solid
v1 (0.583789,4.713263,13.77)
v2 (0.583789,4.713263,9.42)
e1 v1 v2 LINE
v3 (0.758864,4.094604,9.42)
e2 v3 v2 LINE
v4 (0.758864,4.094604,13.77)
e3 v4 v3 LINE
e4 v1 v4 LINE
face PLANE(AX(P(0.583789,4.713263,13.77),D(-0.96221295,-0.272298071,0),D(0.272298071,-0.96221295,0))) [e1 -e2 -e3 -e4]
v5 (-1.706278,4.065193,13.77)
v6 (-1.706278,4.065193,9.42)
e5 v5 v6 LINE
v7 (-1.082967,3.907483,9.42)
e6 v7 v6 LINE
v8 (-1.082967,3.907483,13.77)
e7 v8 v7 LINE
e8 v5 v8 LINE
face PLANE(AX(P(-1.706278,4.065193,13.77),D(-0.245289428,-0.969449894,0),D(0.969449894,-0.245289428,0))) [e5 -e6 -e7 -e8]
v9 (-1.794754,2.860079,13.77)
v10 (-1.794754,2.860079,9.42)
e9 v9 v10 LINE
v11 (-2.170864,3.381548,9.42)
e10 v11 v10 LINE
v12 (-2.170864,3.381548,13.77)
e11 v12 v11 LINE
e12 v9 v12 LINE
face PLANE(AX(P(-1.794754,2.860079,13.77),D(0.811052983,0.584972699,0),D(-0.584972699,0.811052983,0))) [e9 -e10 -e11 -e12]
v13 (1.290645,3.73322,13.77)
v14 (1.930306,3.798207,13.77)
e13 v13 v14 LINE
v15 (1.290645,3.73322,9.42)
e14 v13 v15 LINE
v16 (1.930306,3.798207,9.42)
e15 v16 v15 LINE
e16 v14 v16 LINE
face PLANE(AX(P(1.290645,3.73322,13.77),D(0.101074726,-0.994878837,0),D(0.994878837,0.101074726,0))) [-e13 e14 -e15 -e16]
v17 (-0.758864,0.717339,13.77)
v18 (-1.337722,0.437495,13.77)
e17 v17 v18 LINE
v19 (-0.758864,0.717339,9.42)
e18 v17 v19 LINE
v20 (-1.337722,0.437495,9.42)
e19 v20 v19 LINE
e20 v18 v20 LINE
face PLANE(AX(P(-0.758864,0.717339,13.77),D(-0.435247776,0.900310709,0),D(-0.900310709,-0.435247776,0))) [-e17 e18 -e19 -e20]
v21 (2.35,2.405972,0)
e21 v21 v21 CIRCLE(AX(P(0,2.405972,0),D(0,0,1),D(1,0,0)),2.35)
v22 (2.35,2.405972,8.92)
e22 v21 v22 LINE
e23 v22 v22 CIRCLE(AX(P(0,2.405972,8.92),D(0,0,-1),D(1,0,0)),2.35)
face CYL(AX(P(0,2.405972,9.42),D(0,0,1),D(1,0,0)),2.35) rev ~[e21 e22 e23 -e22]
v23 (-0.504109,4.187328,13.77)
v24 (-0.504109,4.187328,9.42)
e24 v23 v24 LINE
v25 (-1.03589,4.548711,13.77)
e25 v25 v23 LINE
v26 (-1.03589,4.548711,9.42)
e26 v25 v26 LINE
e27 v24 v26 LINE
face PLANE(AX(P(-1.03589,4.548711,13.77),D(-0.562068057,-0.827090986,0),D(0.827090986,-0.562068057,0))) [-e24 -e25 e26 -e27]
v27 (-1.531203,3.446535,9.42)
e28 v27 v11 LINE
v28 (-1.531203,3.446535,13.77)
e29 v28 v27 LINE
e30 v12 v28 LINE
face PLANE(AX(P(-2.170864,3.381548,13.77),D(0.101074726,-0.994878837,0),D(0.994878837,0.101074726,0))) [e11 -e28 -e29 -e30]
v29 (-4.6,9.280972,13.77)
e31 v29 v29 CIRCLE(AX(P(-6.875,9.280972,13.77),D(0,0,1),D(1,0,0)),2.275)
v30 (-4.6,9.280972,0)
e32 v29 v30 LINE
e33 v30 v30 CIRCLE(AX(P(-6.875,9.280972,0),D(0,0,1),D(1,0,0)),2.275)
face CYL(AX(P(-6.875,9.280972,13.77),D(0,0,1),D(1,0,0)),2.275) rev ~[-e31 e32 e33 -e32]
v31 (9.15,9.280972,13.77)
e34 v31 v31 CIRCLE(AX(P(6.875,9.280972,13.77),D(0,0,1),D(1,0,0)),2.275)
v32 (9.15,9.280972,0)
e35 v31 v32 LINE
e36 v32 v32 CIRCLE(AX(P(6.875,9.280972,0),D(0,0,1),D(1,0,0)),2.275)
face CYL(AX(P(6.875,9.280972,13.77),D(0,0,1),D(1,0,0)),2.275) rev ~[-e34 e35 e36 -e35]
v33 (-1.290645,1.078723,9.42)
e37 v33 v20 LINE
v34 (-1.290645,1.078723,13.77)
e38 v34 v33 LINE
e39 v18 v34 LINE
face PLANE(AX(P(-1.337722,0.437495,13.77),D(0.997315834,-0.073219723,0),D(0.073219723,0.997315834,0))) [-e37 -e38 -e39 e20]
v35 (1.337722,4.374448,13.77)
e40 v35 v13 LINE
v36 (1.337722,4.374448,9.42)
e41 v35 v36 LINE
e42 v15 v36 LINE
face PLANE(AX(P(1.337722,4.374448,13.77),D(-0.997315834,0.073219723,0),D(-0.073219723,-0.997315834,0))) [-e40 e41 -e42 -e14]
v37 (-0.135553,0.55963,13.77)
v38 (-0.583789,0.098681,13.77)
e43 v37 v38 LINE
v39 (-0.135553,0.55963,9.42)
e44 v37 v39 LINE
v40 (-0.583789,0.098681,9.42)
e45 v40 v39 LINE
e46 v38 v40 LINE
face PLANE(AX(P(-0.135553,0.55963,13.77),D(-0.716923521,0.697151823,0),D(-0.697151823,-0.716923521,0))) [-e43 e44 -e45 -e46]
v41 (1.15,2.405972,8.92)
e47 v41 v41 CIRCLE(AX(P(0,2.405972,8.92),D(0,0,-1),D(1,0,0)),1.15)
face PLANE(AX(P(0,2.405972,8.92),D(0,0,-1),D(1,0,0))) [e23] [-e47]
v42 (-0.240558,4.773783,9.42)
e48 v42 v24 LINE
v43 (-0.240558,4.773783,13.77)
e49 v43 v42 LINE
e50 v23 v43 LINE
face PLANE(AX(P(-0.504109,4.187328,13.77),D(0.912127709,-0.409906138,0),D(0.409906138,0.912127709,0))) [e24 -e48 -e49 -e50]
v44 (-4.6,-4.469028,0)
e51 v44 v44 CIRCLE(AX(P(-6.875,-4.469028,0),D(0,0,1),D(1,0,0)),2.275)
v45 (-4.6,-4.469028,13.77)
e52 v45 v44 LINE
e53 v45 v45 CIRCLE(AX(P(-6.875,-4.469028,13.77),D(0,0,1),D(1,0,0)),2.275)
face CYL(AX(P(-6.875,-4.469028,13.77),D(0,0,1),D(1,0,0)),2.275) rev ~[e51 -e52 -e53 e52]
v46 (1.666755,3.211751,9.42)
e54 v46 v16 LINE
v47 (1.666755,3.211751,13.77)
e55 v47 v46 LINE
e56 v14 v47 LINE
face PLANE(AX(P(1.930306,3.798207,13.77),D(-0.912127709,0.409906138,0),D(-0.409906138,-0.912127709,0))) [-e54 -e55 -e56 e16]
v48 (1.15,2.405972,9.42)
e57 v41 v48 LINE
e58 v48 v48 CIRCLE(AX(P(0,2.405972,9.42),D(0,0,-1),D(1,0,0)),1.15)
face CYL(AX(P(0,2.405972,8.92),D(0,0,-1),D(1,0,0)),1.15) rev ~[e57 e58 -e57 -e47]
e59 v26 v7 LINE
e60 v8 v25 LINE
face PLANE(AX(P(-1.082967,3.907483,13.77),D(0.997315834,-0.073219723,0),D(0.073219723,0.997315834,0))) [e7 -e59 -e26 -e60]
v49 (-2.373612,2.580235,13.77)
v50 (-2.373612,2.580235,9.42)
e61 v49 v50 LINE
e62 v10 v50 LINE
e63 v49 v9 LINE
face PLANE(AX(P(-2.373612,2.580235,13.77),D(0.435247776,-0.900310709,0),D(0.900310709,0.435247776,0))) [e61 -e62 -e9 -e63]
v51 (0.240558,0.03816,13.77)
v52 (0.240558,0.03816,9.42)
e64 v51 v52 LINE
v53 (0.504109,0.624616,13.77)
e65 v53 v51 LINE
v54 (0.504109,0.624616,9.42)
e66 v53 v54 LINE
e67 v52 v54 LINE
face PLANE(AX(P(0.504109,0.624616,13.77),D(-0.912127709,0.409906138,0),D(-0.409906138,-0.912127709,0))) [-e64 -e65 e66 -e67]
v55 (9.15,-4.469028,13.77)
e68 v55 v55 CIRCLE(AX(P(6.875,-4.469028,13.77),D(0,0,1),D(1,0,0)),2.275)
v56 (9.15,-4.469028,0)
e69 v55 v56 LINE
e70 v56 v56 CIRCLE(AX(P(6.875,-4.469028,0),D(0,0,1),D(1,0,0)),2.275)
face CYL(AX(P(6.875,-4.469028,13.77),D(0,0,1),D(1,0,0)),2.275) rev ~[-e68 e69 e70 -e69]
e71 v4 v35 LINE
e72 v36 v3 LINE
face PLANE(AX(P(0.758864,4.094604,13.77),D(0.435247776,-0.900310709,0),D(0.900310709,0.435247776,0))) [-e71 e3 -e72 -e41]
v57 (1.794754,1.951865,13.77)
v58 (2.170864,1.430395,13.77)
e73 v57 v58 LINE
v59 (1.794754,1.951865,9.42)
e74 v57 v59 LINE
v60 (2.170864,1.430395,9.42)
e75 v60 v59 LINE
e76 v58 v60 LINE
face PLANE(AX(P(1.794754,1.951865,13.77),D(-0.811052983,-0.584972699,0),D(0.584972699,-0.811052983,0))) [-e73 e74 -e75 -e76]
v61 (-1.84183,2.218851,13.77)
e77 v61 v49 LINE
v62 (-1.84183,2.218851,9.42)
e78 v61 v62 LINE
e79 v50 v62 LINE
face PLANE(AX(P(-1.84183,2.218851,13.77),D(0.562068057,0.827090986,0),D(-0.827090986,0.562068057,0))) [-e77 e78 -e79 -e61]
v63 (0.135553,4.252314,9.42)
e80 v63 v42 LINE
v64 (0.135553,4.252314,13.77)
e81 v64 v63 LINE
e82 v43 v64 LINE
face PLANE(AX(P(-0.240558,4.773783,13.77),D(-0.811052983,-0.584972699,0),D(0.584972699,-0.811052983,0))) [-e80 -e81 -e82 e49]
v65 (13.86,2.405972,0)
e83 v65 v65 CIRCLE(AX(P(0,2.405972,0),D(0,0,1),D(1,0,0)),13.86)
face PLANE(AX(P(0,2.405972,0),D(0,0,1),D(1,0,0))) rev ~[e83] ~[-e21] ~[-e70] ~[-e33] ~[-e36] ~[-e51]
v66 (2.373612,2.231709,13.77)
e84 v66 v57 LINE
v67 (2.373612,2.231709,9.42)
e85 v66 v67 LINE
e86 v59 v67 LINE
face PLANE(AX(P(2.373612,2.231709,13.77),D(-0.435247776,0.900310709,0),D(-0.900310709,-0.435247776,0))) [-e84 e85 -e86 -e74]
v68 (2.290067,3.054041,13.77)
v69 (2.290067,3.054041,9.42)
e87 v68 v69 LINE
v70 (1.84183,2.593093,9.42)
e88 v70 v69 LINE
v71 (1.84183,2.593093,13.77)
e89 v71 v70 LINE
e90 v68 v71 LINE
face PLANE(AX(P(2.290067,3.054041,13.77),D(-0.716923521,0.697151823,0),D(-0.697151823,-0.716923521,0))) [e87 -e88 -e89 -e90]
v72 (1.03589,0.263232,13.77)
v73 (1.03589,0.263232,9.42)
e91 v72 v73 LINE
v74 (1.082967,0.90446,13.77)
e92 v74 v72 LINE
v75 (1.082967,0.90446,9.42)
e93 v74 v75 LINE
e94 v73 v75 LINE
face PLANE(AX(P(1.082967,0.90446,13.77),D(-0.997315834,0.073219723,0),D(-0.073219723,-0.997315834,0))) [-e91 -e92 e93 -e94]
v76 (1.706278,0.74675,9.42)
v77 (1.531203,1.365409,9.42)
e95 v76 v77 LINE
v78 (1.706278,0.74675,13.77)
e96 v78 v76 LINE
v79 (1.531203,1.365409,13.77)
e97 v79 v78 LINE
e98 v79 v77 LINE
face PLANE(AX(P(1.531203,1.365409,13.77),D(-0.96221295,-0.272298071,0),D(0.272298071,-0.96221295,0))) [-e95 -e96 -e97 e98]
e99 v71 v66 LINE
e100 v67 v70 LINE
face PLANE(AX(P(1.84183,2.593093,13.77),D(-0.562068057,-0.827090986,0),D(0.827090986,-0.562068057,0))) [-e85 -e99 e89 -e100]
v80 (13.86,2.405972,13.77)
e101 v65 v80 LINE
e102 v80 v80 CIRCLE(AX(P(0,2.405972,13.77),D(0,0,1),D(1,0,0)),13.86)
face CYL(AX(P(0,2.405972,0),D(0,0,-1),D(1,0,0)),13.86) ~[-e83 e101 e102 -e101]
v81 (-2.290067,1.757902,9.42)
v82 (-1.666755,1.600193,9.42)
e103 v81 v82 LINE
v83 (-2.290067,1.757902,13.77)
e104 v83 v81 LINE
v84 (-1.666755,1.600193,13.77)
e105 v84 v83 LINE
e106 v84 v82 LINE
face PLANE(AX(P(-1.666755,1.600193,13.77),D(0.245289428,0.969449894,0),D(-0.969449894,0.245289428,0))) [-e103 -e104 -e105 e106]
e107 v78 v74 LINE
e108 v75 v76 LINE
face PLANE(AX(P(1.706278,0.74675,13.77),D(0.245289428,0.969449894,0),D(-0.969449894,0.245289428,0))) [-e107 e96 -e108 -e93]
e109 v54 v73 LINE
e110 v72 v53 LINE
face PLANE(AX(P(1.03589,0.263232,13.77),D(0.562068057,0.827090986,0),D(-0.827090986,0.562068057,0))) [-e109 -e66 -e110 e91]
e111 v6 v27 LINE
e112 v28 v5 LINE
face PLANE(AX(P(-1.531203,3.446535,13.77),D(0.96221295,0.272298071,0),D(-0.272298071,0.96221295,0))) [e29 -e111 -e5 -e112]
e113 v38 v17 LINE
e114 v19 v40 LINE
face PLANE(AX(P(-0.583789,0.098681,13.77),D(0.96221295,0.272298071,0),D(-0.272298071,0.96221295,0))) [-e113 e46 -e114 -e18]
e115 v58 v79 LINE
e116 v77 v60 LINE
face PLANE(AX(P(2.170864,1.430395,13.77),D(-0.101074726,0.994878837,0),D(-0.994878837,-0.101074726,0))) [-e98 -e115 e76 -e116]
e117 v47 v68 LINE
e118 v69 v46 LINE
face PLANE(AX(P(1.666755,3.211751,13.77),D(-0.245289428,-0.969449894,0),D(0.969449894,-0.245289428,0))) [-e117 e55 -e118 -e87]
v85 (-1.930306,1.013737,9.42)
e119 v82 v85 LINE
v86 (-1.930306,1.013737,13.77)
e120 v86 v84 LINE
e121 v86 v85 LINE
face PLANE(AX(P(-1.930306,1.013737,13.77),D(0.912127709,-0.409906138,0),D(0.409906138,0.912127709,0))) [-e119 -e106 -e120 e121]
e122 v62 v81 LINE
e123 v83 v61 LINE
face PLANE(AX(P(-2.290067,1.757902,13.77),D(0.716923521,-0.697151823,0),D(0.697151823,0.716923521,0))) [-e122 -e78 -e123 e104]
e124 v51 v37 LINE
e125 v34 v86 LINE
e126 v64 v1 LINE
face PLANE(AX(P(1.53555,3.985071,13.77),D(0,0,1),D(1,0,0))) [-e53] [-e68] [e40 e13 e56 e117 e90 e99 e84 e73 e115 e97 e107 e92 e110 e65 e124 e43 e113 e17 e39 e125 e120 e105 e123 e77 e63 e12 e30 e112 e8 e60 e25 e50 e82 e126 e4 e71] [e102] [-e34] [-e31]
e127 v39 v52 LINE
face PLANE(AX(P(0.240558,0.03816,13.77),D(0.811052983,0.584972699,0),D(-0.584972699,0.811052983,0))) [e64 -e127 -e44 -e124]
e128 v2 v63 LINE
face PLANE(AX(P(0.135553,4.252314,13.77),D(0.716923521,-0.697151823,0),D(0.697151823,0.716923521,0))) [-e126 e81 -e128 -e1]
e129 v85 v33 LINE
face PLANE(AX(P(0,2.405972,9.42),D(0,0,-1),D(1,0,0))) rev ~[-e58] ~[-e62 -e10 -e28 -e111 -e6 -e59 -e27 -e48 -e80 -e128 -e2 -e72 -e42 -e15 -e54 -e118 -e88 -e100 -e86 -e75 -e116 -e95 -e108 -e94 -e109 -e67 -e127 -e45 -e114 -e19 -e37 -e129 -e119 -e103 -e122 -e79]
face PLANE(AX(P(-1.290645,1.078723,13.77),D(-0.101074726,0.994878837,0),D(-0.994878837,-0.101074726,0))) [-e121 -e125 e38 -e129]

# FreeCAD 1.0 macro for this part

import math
import FreeCAD as App
import Part
import Sketcher
Q = App.Units.Quantity

doc = App.newDocument("Part")
body = doc.addObject("PartDesign::Body", "Body")

sketch1 = body.newObject("Sketcher::SketchObject", "Sketch")
sketch1.AttachmentSupport = (doc.getObject("XY_Plane"), [""])
sketch1.MapMode = "FlatFace"
sketch1.addGeometry(Part.Circle(App.Vector(0, 2.405972, 0), App.Vector(0, 0, 1), 13.86), False)
sketch1.addConstraint([
    Sketcher.Constraint("PointOnObject", 0, 3, -2),
    Sketcher.Constraint("Diameter", 0, Q("27.72 mm")),
    Sketcher.Constraint("DistanceY", -1, 1, 0, 3, Q("2.405972 mm")),
])
pad1 = body.newObject("PartDesign::Pad", "Pad")
pad1.Profile = sketch1
pad1.Length = 13.77

sketch2 = body.newObject("Sketcher::SketchObject", "Sketch001")
sketch2.AttachmentSupport = (doc.getObject("XY_Plane"), [""])
sketch2.MapMode = "FlatFace"
sketch2.AttachmentOffset = App.Placement(App.Vector(0, 0, 13.77), App.Rotation())
sketch2.addGeometry([
    Part.Circle(App.Vector(0, 2.405972, 0), App.Vector(0, 0, 1), 2.35),
    Part.Circle(App.Vector(6.875, 9.280972, 0), App.Vector(0, 0, 1), 2.275),
    Part.Circle(App.Vector(-6.875, 9.280972, 0), App.Vector(0, 0, 1), 2.275),
    Part.Circle(App.Vector(-6.875, -4.469028, 0), App.Vector(0, 0, 1), 2.275),
    Part.Circle(App.Vector(6.875, -4.469028, 0), App.Vector(0, 0, 1), 2.275),
], False)
sketch2.addConstraint([
    Sketcher.Constraint("Equal", 1, 2),
    Sketcher.Constraint("Equal", 2, 3),
    Sketcher.Constraint("Equal", 3, 4),
    Sketcher.Constraint("Symmetric", 1, 3, 2, 3, -2),
    Sketcher.Constraint("Symmetric", 3, 3, 4, 3, -2),
    Sketcher.Constraint("PointOnObject", 0, 3, -2),
    Sketcher.Constraint("Vertical", 2, 3, 3, 3),
    Sketcher.Constraint("Diameter", 0, Q("4.7 mm")),
    Sketcher.Constraint("Diameter", 1, Q("4.55 mm")),
    Sketcher.Constraint("DistanceX", 2, 3, 1, 3, Q("13.75 mm")),
    Sketcher.Constraint("DistanceY", 3, 3, 2, 3, Q("13.75 mm")),
    Sketcher.Constraint("DistanceY", 0, 3, 1, 3, Q("6.875 mm")),
    Sketcher.Constraint("DistanceY", -1, 1, 0, 3, Q("2.405972 mm")),
])
pocket1 = body.newObject("PartDesign::Pocket", "Pocket")
pocket1.Profile = sketch2
pocket1.Length = 25

sketch3 = body.newObject("Sketcher::SketchObject", "Sketch002")
sketch3.AttachmentSupport = (doc.getObject("XY_Plane"), [""])
sketch3.MapMode = "FlatFace"
sketch3.AttachmentOffset = App.Placement(App.Vector(0, 0, 13.77), App.Rotation())
sketch3.addGeometry(Part.Circle(App.Vector(0, 2.405972, 0), App.Vector(0, 0, 1), 2.35), False)
sketch3.addConstraint([
    Sketcher.Constraint("PointOnObject", 0, 3, -2),
    Sketcher.Constraint("Diameter", 0, Q("4.7 mm")),
    Sketcher.Constraint("DistanceY", -1, 1, 0, 3, Q("2.405972 mm")),
])
pad2 = body.newObject("PartDesign::Pad", "Pad001")
pad2.Profile = sketch3
pad2.Length = 6.9
pad2.Reversed = True

sketch4 = body.newObject("Sketcher::SketchObject", "Sketch003")
sketch4.AttachmentSupport = (doc.getObject("XY_Plane"), [""])
sketch4.MapMode = "FlatFace"
sketch4.AttachmentOffset = App.Placement(App.Vector(0, 0, 13.77), App.Rotation())
sketch4.addGeometry(Part.Circle(App.Vector(0, 2.405972, 0), App.Vector(0, 0, 1), 2.38), False)
sketch4.addConstraint([
    Sketcher.Constraint("PointOnObject", 0, 3, -2),
    Sketcher.Constraint("Diameter", 0, Q("4.76 mm")),
    Sketcher.Constraint("DistanceY", -1, 1, 0, 3, Q("2.405972 mm")),
])
pocket2 = body.newObject("PartDesign::Pocket", "Pocket001")
pocket2.Profile = sketch4
pocket2.Length = 4.35

sketch5 = body.newObject("Sketcher::SketchObject", "Sketch004")
sketch5.AttachmentSupport = (doc.getObject("XY_Plane"), [""])
sketch5.MapMode = "FlatFace"
sketch5.AttachmentOffset = App.Placement(App.Vector(0, 0, 13.77), App.Rotation())
sketch5.addGeometry([
    Part.LineSegment(App.Vector(1.290645, 3.73322, 0), App.Vector(1.930306, 3.798207, 0)),
    Part.ArcOfCircle(Part.Circle(App.Vector(0, 2.405972, 0), App.Vector(0, 0, 1), 2.38), math.radians(35.801061), math.radians(55.801061)),
    Part.LineSegment(App.Vector(1.337722, 4.374448, 0), App.Vector(1.290645, 3.73322, 0)),
    Part.LineSegment(App.Vector(1.666755, 3.211751, 0), App.Vector(2.290067, 3.054041, 0)),
    Part.ArcOfCircle(Part.Circle(App.Vector(0, 2.405972, 0), App.Vector(0, 0, 1), 2.38), math.radians(15.801061), math.radians(35.801061)),
    Part.LineSegment(App.Vector(1.930306, 3.798207, 0), App.Vector(1.666755, 3.211751, 0)),
    Part.ArcOfCircle(Part.Circle(App.Vector(0, 2.405972, 0), App.Vector(0, 0, 1), 2.38), math.radians(-4.198939), math.radians(0)),
    Part.ArcOfCircle(Part.Circle(App.Vector(0, 2.405972, 0), App.Vector(0, 0, 1), 2.38), math.radians(0), math.radians(15.801061)),
    Part.LineSegment(App.Vector(2.290067, 3.054041, 0), App.Vector(1.84183, 2.593093, 0)),
    Part.LineSegment(App.Vector(1.84183, 2.593093, 0), App.Vector(2.373612, 2.231709, 0)),
    Part.ArcOfCircle(Part.Circle(App.Vector(0, 2.405972, 0), App.Vector(0, 0, 1), 2.38), math.radians(-24.198939), math.radians(-4.198939)),
    Part.LineSegment(App.Vector(2.373612, 2.231709, 0), App.Vector(1.794754, 1.951865, 0)),
    Part.LineSegment(App.Vector(1.794754, 1.951865, 0), App.Vector(2.170864, 1.430395, 0)),
    Part.ArcOfCircle(Part.Circle(App.Vector(0, 2.405972, 0), App.Vector(0, 0, 1), 2.38), math.radians(-44.198939), math.radians(-24.198939)),
    Part.LineSegment(App.Vector(2.170864, 1.430395, 0), App.Vector(1.531203, 1.365409, 0)),
    Part.LineSegment(App.Vector(1.531203, 1.365409, 0), App.Vector(1.706278, 0.74675, 0)),
    Part.ArcOfCircle(Part.Circle(App.Vector(0, 2.405972, 0), App.Vector(0, 0, 1), 2.38), math.radians(-64.198939), math.radians(-44.198939)),
    Part.LineSegment(App.Vector(1.706278, 0.74675, 0), App.Vector(1.082967, 0.90446, 0)),
    Part.LineSegment(App.Vector(1.082967, 0.90446, 0), App.Vector(1.03589, 0.263232, 0)),
    Part.ArcOfCircle(Part.Circle(App.Vector(0, 2.405972, 0), App.Vector(0, 0, 1), 2.38), math.radians(-84.198939), math.radians(-64.198939)),
    Part.LineSegment(App.Vector(1.03589, 0.263232, 0), App.Vector(0.504109, 0.624616, 0)),
    Part.LineSegment(App.Vector(0.504109, 0.624616, 0), App.Vector(0.240558, 0.03816, 0)),
    Part.ArcOfCircle(Part.Circle(App.Vector(0, 2.405972, 0), App.Vector(0, 0, 1), 2.38), math.radians(-104.198939), math.radians(-84.198939)),
    Part.LineSegment(App.Vector(0.240558, 0.03816, 0), App.Vector(-0.135553, 0.55963, 0)),
    Part.LineSegment(App.Vector(-0.135553, 0.55963, 0), App.Vector(-0.583789, 0.098681, 0)),
    Part.ArcOfCircle(Part.Circle(App.Vector(0, 2.405972, 0), App.Vector(0, 0, 1), 2.38), math.radians(-124.198939), math.radians(-104.198939)),
    Part.LineSegment(App.Vector(-0.583789, 0.098681, 0), App.Vector(-0.758864, 0.717339, 0)),
    Part.LineSegment(App.Vector(-0.758864, 0.717339, 0), App.Vector(-1.337722, 0.437495, 0)),
    Part.ArcOfCircle(Part.Circle(App.Vector(0, 2.405972, 0), App.Vector(0, 0, 1), 2.38), math.radians(-144.198939), math.radians(-124.198939)),
    Part.LineSegment(App.Vector(-1.337722, 0.437495, 0), App.Vector(-1.290645, 1.078723, 0)),
    Part.LineSegment(App.Vector(-1.290645, 1.078723, 0), App.Vector(-1.930306, 1.013737, 0)),
    Part.ArcOfCircle(Part.Circle(App.Vector(0, 2.405972, 0), App.Vector(0, 0, 1), 2.38), math.radians(-164.198939), math.radians(-144.198939)),
    Part.LineSegment(App.Vector(-1.930306, 1.013737, 0), App.Vector(-1.666755, 1.600193, 0)),
    Part.LineSegment(App.Vector(-1.666755, 1.600193, 0), App.Vector(-2.290067, 1.757902, 0)),
    Part.LineSegment(App.Vector(-1.84183, 2.218851, 0), App.Vector(-2.373612, 2.580235, 0)),
    Part.ArcOfCircle(Part.Circle(App.Vector(0, 2.405972, 0), App.Vector(0, 0, 1), 2.38), math.radians(175.801061), math.radians(195.801061)),
    Part.LineSegment(App.Vector(-2.290067, 1.757902, 0), App.Vector(-1.84183, 2.218851, 0)),
    Part.LineSegment(App.Vector(-1.794754, 2.860079, 0), App.Vector(-2.170864, 3.381548, 0)),
    Part.ArcOfCircle(Part.Circle(App.Vector(0, 2.405972, 0), App.Vector(0, 0, 1), 2.38), math.radians(155.801061), math.radians(175.801061)),
    Part.LineSegment(App.Vector(-2.373612, 2.580235, 0), App.Vector(-1.794754, 2.860079, 0)),
    Part.LineSegment(App.Vector(-1.531203, 3.446535, 0), App.Vector(-1.706278, 4.065193, 0)),
    Part.ArcOfCircle(Part.Circle(App.Vector(0, 2.405972, 0), App.Vector(0, 0, 1), 2.38), math.radians(135.801061), math.radians(155.801061)),
    Part.LineSegment(App.Vector(-2.170864, 3.381548, 0), App.Vector(-1.531203, 3.446535, 0)),
    Part.LineSegment(App.Vector(-1.082967, 3.907483, 0), App.Vector(-1.03589, 4.548711, 0)),
    Part.ArcOfCircle(Part.Circle(App.Vector(0, 2.405972, 0), App.Vector(0, 0, 1), 2.38), math.radians(115.801061), math.radians(135.801061)),
    Part.LineSegment(App.Vector(-1.706278, 4.065193, 0), App.Vector(-1.082967, 3.907483, 0)),
    Part.LineSegment(App.Vector(-0.504109, 4.187328, 0), App.Vector(-0.240558, 4.773783, 0)),
    Part.ArcOfCircle(Part.Circle(App.Vector(0, 2.405972, 0), App.Vector(0, 0, 1), 2.38), math.radians(95.801061), math.radians(115.801061)),
    Part.LineSegment(App.Vector(-1.03589, 4.548711, 0), App.Vector(-0.504109, 4.187328, 0)),
    Part.LineSegment(App.Vector(0.135553, 4.252314, 0), App.Vector(0.583789, 4.713263, 0)),
    Part.ArcOfCircle(Part.Circle(App.Vector(0, 2.405972, 0), App.Vector(0, 0, 1), 2.38), math.radians(75.801061), math.radians(95.801061)),
    Part.LineSegment(App.Vector(-0.240558, 4.773783, 0), App.Vector(0.135553, 4.252314, 0)),
    Part.LineSegment(App.Vector(0.758864, 4.094604, 0), App.Vector(1.337722, 4.374448, 0)),
    Part.ArcOfCircle(Part.Circle(App.Vector(0, 2.405972, 0), App.Vector(0, 0, 1), 2.38), math.radians(55.801061), math.radians(75.801061)),
    Part.LineSegment(App.Vector(0.583789, 4.713263, 0), App.Vector(0.758864, 4.094604, 0)),
], False)
sketch5.addConstraint([
    Sketcher.Constraint("Coincident", 0, 2, 1, 1),
    Sketcher.Constraint("Coincident", 1, 2, 2, 1),
    Sketcher.Constraint("Coincident", 2, 2, 0, 1),
    Sketcher.Constraint("Coincident", 3, 2, 4, 1),
    Sketcher.Constraint("Coincident", 4, 2, 5, 1),
    Sketcher.Constraint("Coincident", 5, 2, 3, 1),
    Sketcher.Constraint("Tangent", 6, 2, 7, 1),
    Sketcher.Constraint("Coincident", 7, 2, 8, 1),
    Sketcher.Constraint("Coincident", 8, 2, 9, 1),
    Sketcher.Constraint("Coincident", 9, 2, 6, 1),
    Sketcher.Constraint("Coincident", 10, 2, 11, 1),
    Sketcher.Constraint("Coincident", 11, 2, 12, 1),
    Sketcher.Constraint("Coincident", 12, 2, 10, 1),
    Sketcher.Constraint("Coincident", 13, 2, 14, 1),
    Sketcher.Constraint("Coincident", 14, 2, 15, 1),
    Sketcher.Constraint("Coincident", 15, 2, 13, 1),
    Sketcher.Constraint("Coincident", 16, 2, 17, 1),
    Sketcher.Constraint("Coincident", 17, 2, 18, 1),
    Sketcher.Constraint("Coincident", 18, 2, 16, 1),
    Sketcher.Constraint("Coincident", 19, 2, 20, 1),
    Sketcher.Constraint("Coincident", 20, 2, 21, 1),
    Sketcher.Constraint("Coincident", 21, 2, 19, 1),
    Sketcher.Constraint("Coincident", 22, 2, 23, 1),
    Sketcher.Constraint("Coincident", 23, 2, 24, 1),
    Sketcher.Constraint("Coincident", 24, 2, 22, 1),
    Sketcher.Constraint("Coincident", 25, 2, 26, 1),
    Sketcher.Constraint("Coincident", 26, 2, 27, 1),
    Sketcher.Constraint("Coincident", 27, 2, 25, 1),
    Sketcher.Constraint("Coincident", 28, 2, 29, 1),
    Sketcher.Constraint("Coincident", 29, 2, 30, 1),
    Sketcher.Constraint("Coincident", 30, 2, 28, 1),
    Sketcher.Constraint("Coincident", 31, 2, 32, 1),
    Sketcher.Constraint("Coincident", 32, 2, 33, 1),
    Sketcher.Constraint("Coincident", 33, 2, 31, 1),
    Sketcher.Constraint("Coincident", 34, 2, 35, 1),
    Sketcher.Constraint("Coincident", 35, 2, 36, 1),
    Sketcher.Constraint("Coincident", 36, 2, 34, 1),
    Sketcher.Constraint("Coincident", 37, 2, 38, 1),
    Sketcher.Constraint("Coincident", 38, 2, 39, 1),
    Sketcher.Constraint("Coincident", 39, 2, 37, 1),
    Sketcher.Constraint("Coincident", 40, 2, 41, 1),
    Sketcher.Constraint("Coincident", 41, 2, 42, 1),
    Sketcher.Constraint("Coincident", 42, 2, 40, 1),
    Sketcher.Constraint("Coincident", 43, 2, 44, 1),
    Sketcher.Constraint("Coincident", 44, 2, 45, 1),
    Sketcher.Constraint("Coincident", 45, 2, 43, 1),
    Sketcher.Constraint("Coincident", 46, 2, 47, 1),
    Sketcher.Constraint("Coincident", 47, 2, 48, 1),
    Sketcher.Constraint("Coincident", 48, 2, 46, 1),
    Sketcher.Constraint("Coincident", 49, 2, 50, 1),
    Sketcher.Constraint("Coincident", 50, 2, 51, 1),
    Sketcher.Constraint("Coincident", 51, 2, 49, 1),
    Sketcher.Constraint("Coincident", 52, 2, 53, 1),
    Sketcher.Constraint("Coincident", 53, 2, 54, 1),
    Sketcher.Constraint("Coincident", 54, 2, 52, 1),
    Sketcher.Constraint("Coincident", 4, 3, 1, 3),
    Sketcher.Constraint("Coincident", 6, 3, 1, 3),
    Sketcher.Constraint("Coincident", 10, 3, 1, 3),
    Sketcher.Constraint("Coincident", 13, 3, 1, 3),
    Sketcher.Constraint("Coincident", 16, 3, 1, 3),
    Sketcher.Constraint("Coincident", 19, 3, 1, 3),
    Sketcher.Constraint("Coincident", 22, 3, 1, 3),
    Sketcher.Constraint("Coincident", 25, 3, 1, 3),
    Sketcher.Constraint("Coincident", 28, 3, 1, 3),
    Sketcher.Constraint("Coincident", 31, 3, 1, 3),
    Sketcher.Constraint("Coincident", 35, 3, 1, 3),
    Sketcher.Constraint("Coincident", 38, 3, 1, 3),
    Sketcher.Constraint("Coincident", 41, 3, 1, 3),
    Sketcher.Constraint("Coincident", 44, 3, 1, 3),
    Sketcher.Constraint("Coincident", 47, 3, 1, 3),
    Sketcher.Constraint("Coincident", 50, 3, 1, 3),
    Sketcher.Constraint("Coincident", 53, 3, 1, 3),
    Sketcher.Constraint("Coincident", 4, 2, 0, 2),
    Sketcher.Constraint("Coincident", 7, 2, 3, 2),
    Sketcher.Constraint("Coincident", 10, 2, 9, 2),
    Sketcher.Constraint("Coincident", 13, 2, 12, 2),
    Sketcher.Constraint("Coincident", 16, 2, 15, 2),
    Sketcher.Constraint("Coincident", 19, 2, 18, 2),
    Sketcher.Constraint("Coincident", 22, 2, 21, 2),
    Sketcher.Constraint("Coincident", 25, 2, 24, 2),
    Sketcher.Constraint("Coincident", 28, 2, 27, 2),
    Sketcher.Constraint("Coincident", 31, 2, 30, 2),
    Sketcher.Constraint("Coincident", 35, 2, 33, 2),
    Sketcher.Constraint("Coincident", 38, 2, 34, 2),
    Sketcher.Constraint("Coincident", 41, 2, 37, 2),
    Sketcher.Constraint("Coincident", 44, 2, 40, 2),
    Sketcher.Constraint("Coincident", 47, 2, 43, 2),
    Sketcher.Constraint("Coincident", 50, 2, 46, 2),
    Sketcher.Constraint("Coincident", 52, 2, 1, 2),
    Sketcher.Constraint("Coincident", 53, 2, 49, 2),
    Sketcher.Constraint("PointOnObject", 1, 3, -2),
    Sketcher.Constraint("Parallel", 0, 14),
    Sketcher.Constraint("Parallel", 3, 17),
    Sketcher.Constraint("Parallel", 2, 18),
    Sketcher.Constraint("Parallel", 9, 20),
    Sketcher.Constraint("Parallel", 5, 21),
    Sketcher.Constraint("Parallel", 12, 23),
    Sketcher.Constraint("Parallel", 8, 24),
    Sketcher.Constraint("Parallel", 15, 26),
    Sketcher.Constraint("Parallel", 11, 27),
    Sketcher.Constraint("Parallel", 18, 29),
    Sketcher.Constraint("Parallel", 14, 30),
    Sketcher.Constraint("Parallel", 21, 32),
    Sketcher.Constraint("Parallel", 17, 33),
    Sketcher.Constraint("Parallel", 20, 34),
    Sketcher.Constraint("Parallel", 24, 36),
    Sketcher.Constraint("Parallel", 23, 37),
    Sketcher.Constraint("Parallel", 27, 39),
    Sketcher.Constraint("Parallel", 26, 40),
    Sketcher.Constraint("Parallel", 30, 42),
    Sketcher.Constraint("Parallel", 29, 43),
    Sketcher.Constraint("Parallel", 33, 45),
    Sketcher.Constraint("Parallel", 32, 46),
    Sketcher.Constraint("Parallel", 34, 48),
    Sketcher.Constraint("Parallel", 36, 49),
    Sketcher.Constraint("Parallel", 37, 51),
    Sketcher.Constraint("Parallel", 39, 52),
    Sketcher.Constraint("Parallel", 40, 54),
    Sketcher.Constraint("Horizontal", 53, 3, 6, 2),
    Sketcher.Constraint("Equal", 0, 2),
    Sketcher.Constraint("Equal", 2, 3),
    Sketcher.Constraint("Equal", 3, 5),
    Sketcher.Constraint("Equal", 5, 8),
    Sketcher.Constraint("Equal", 8, 9),
    Sketcher.Constraint("Equal", 9, 11),
    Sketcher.Constraint("Equal", 11, 12),
    Sketcher.Constraint("Equal", 12, 14),
    Sketcher.Constraint("Equal", 14, 15),
    Sketcher.Constraint("Equal", 15, 17),
    Sketcher.Constraint("Equal", 17, 18),
    Sketcher.Constraint("Equal", 18, 20),
    Sketcher.Constraint("Equal", 20, 21),
    Sketcher.Constraint("Equal", 21, 23),
    Sketcher.Constraint("Equal", 23, 24),
    Sketcher.Constraint("Equal", 24, 26),
    Sketcher.Constraint("Equal", 26, 27),
    Sketcher.Constraint("Equal", 27, 29),
    Sketcher.Constraint("Equal", 29, 30),
    Sketcher.Constraint("Equal", 30, 32),
    Sketcher.Constraint("Equal", 33, 34),
    Sketcher.Constraint("Equal", 36, 37),
    Sketcher.Constraint("Equal", 39, 40),
    Sketcher.Constraint("Equal", 42, 43),
    Sketcher.Constraint("Equal", 45, 46),
    Sketcher.Constraint("Equal", 48, 49),
    Sketcher.Constraint("Radius", 1, Q("2.38 mm")),
    Sketcher.Constraint("DistanceY", -1, 1, 1, 3, Q("2.405972 mm")),
    Sketcher.Constraint("DistanceX", -1, 1, 1, 2, Q("1.337722 mm")),
])
pad3 = body.newObject("PartDesign::Pad", "Pad002")
pad3.Profile = sketch5
pad3.Length = 5
pad3.Reversed = True

sketch6 = body.newObject("Sketcher::SketchObject", "Sketch005")
sketch6.AttachmentSupport = (doc.getObject("XY_Plane"), [""])
sketch6.MapMode = "FlatFace"
sketch6.AttachmentOffset = App.Placement(App.Vector(0, 0, 6.87), App.Rotation())
sketch6.addGeometry(Part.Circle(App.Vector(0, 2.405972, 0), App.Vector(0, 0, 1), 1.15), False)
sketch6.addConstraint([
    Sketcher.Constraint("PointOnObject", 0, 3, -2),
    Sketcher.Constraint("Diameter", 0, Q("2.3 mm")),
    Sketcher.Constraint("DistanceY", -1, 1, 0, 3, Q("2.405972 mm")),
])
pocket3 = body.newObject("PartDesign::Pocket", "Pocket002")
pocket3.Profile = sketch6
pocket3.Length = 25
pocket3.Reversed = True

sketch7 = body.newObject("Sketcher::SketchObject", "Sketch006")
sketch7.AttachmentSupport = (doc.getObject("XY_Plane"), [""])
sketch7.MapMode = "FlatFace"
sketch7.AttachmentOffset = App.Placement(App.Vector(0, 0, 9.42), App.Rotation())
sketch7.addGeometry(Part.Circle(App.Vector(0, 2.405972, 0), App.Vector(0, 0, 1), 2.35), False)
sketch7.addConstraint([
    Sketcher.Constraint("PointOnObject", 0, 3, -2),
    Sketcher.Constraint("Diameter", 0, Q("4.7 mm")),
    Sketcher.Constraint("DistanceY", -1, 1, 0, 3, Q("2.405972 mm")),
])
pocket4 = body.newObject("PartDesign::Pocket", "Pocket003")
pocket4.Profile = sketch7
pocket4.Length = 25

sketch8 = body.newObject("Sketcher::SketchObject", "Sketch007")
sketch8.AttachmentSupport = (doc.getObject("XY_Plane"), [""])
sketch8.MapMode = "FlatFace"
sketch8.AttachmentOffset = App.Placement(App.Vector(0, 0, 9.42), App.Rotation())
sketch8.addGeometry(Part.Circle(App.Vector(0, 2.405972, 0), App.Vector(0, 0, 1), 2.35), False)
sketch8.addConstraint([
    Sketcher.Constraint("PointOnObject", 0, 3, -2),
    Sketcher.Constraint("Diameter", 0, Q("4.7 mm")),
    Sketcher.Constraint("DistanceY", -1, 1, 0, 3, Q("2.405972 mm")),
])
pad4 = body.newObject("PartDesign::Pad", "Pad003")
pad4.Profile = sketch8
pad4.Length = 0.5
pad4.Reversed = True

sketch9 = body.newObject("Sketcher::SketchObject", "Sketch008")
sketch9.AttachmentSupport = (doc.getObject("XY_Plane"), [""])
sketch9.MapMode = "FlatFace"
sketch9.AttachmentOffset = App.Placement(App.Vector(0, 0, 8.92), App.Rotation())
sketch9.addGeometry(Part.Circle(App.Vector(0, 2.405972, 0), App.Vector(0, 0, 1), 1.15), False)
sketch9.addConstraint([
    Sketcher.Constraint("PointOnObject", 0, 3, -2),
    Sketcher.Constraint("Diameter", 0, Q("2.3 mm")),
    Sketcher.Constraint("DistanceY", -1, 1, 0, 3, Q("2.405972 mm")),
])
pocket5 = body.newObject("PartDesign::Pocket", "Pocket004")
pocket5.Profile = sketch9
pocket5.Length = 25
pocket5.Reversed = True

doc.recompute()
